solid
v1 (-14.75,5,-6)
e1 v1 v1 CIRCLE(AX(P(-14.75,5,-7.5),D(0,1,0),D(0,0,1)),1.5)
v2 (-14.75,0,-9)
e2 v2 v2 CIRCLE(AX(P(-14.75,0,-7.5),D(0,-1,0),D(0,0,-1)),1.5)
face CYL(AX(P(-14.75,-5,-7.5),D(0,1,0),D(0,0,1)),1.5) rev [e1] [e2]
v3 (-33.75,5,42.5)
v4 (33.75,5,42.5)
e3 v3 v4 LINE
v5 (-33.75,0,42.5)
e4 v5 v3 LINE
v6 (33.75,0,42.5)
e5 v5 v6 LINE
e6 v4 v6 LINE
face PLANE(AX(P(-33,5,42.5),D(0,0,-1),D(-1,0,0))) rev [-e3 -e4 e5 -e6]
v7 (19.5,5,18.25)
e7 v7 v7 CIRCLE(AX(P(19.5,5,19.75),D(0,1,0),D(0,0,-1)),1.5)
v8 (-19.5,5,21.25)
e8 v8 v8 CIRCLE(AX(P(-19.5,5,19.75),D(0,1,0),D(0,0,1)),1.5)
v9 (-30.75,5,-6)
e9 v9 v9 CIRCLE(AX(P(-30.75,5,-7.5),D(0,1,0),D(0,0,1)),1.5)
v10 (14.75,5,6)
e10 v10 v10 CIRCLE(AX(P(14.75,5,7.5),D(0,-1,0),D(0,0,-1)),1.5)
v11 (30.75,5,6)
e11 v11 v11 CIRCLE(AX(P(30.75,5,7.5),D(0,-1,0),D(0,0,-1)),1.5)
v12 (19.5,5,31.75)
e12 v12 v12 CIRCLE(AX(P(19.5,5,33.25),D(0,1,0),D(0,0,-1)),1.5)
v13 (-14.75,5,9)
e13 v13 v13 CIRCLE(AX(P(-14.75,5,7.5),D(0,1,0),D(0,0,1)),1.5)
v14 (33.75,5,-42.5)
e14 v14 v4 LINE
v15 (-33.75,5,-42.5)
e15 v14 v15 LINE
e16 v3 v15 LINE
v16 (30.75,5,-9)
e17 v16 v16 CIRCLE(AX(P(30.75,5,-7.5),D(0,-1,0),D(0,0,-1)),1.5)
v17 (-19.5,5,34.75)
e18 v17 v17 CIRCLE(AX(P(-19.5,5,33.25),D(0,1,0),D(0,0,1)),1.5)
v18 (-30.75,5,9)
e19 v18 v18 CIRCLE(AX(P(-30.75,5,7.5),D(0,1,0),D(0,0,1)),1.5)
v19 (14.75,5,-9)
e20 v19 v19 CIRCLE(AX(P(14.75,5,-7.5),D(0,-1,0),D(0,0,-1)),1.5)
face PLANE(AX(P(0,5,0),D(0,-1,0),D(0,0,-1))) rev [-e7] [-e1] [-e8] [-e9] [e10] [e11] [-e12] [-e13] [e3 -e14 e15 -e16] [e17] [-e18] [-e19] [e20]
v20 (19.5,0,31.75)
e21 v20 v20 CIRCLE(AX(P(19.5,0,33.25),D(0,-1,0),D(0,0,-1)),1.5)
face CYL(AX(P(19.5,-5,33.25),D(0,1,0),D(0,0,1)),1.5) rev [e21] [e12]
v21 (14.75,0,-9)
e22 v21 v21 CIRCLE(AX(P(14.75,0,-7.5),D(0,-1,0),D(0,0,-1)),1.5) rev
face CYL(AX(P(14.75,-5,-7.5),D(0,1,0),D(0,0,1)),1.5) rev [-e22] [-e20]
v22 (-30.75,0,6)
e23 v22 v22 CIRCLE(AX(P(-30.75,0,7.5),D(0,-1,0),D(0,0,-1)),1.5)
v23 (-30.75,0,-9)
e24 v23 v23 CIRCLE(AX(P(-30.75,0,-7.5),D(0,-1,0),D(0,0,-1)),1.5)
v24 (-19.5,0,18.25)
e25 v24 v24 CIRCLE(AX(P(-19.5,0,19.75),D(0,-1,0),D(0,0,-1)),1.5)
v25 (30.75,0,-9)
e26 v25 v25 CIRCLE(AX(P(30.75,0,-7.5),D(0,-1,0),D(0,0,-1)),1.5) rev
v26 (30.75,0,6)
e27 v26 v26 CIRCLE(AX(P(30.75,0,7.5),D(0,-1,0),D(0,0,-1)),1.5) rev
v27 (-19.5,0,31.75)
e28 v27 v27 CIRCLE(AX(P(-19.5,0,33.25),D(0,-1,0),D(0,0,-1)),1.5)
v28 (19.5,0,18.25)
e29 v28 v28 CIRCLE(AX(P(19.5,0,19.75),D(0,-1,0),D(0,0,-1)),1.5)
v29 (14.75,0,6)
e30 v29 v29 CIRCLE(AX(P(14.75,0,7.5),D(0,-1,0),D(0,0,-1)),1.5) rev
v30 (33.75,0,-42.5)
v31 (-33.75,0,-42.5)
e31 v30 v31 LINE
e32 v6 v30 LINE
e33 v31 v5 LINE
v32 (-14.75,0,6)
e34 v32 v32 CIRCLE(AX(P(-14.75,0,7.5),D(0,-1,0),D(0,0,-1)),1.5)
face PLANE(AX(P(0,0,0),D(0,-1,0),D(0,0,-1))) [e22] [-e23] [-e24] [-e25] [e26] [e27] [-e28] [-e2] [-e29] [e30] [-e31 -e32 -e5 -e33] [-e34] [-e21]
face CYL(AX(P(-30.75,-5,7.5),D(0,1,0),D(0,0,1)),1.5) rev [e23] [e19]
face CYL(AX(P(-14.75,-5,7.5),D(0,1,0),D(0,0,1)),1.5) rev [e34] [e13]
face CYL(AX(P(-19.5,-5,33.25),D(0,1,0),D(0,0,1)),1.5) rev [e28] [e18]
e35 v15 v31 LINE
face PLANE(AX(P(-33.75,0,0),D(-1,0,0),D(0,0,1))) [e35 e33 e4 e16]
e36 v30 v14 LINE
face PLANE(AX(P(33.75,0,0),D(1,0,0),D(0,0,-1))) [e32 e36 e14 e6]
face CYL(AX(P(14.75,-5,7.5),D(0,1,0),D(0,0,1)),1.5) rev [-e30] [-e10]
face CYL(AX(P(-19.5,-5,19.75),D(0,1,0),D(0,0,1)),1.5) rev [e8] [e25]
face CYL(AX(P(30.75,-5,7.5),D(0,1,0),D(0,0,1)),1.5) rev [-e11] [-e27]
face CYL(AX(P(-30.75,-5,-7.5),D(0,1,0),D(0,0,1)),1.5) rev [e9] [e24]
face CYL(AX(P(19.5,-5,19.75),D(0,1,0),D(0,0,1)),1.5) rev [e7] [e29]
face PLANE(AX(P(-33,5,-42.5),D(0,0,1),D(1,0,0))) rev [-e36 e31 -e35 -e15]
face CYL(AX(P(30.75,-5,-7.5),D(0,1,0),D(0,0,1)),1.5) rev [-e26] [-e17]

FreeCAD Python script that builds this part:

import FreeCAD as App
import Part
import Sketcher

V = App.Vector

doc = App.newDocument("Part")
body = doc.addObject("PartDesign::Body", "Body")

# Sketch on XZ plane
sketch1 = doc.addObject("Sketcher::SketchObject", "Sketch")
body.addObject(sketch1)
sketch1.AttachmentSupport = (doc.XZ_Plane, [""])
sketch1.MapMode = "FlatFace"
sketch1.addGeometry([
    Part.LineSegment(V(-33, -42, 0), V(-33, 42, 0)),
    Part.LineSegment(V(-33, 42, 0), V(33, 42, 0)),
    Part.LineSegment(V(33, 42, 0), V(33, -42, 0)),
    Part.LineSegment(V(33, -42, 0), V(-33, -42, 0)),
], False)
sketch1.addConstraint([
    Sketcher.Constraint("Coincident", 0, 2, 1, 1),
    Sketcher.Constraint("Coincident", 1, 2, 2, 1),
    Sketcher.Constraint("Coincident", 2, 2, 3, 1),
    Sketcher.Constraint("Coincident", 3, 2, 0, 1),
    Sketcher.Constraint("Vertical", 0),
    Sketcher.Constraint("Horizontal", 1),
    Sketcher.Constraint("Vertical", 2),
    Sketcher.Constraint("Horizontal", 3),
    Sketcher.Constraint("Symmetric", 0, 2, 2, 2, -1, 1),
    Sketcher.Constraint("DistanceX", 1, 1, 1, 2, 66.0),
    Sketcher.Constraint("DistanceY", 0, 1, 0, 2, 85.0),
])
pad1 = doc.addObject("PartDesign::Pad", "Pad")
body.addObject(pad1)
pad1.Profile = sketch1
pad1.Length = 5
pad1.Reversed = True

# Sketch on XZ plane
sketch2 = doc.addObject("Sketcher::SketchObject", "Sketch001")
body.addObject(sketch2)
sketch2.AttachmentSupport = (doc.XZ_Plane, [""])
sketch2.MapMode = "FlatFace"
sketch2.AttachmentOffset = App.Placement(V(0, 0, -5), App.Rotation())
sketch2.addGeometry([
    Part.Circle(V(-30.8, -7.5, 0), V(0, 0, 1), 1.5),  # 0
    Part.Circle(V(-14.8, -7.5, 0), V(0, 0, 1), 1.5),  # 1
    Part.Circle(V(-30.8, 7.5, 0), V(0, 0, 1), 1.5),  # 2
    Part.Circle(V(-14.8, 7.5, 0), V(0, 0, 1), 1.5),  # 3
    Part.Circle(V(14.8, 7.5, 0), V(0, 0, 1), 1.5),  # 4
    Part.Circle(V(30.8, 7.5, 0), V(0, 0, 1), 1.5),  # 5
    Part.Circle(V(14.8, -7.5, 0), V(0, 0, 1), 1.5),  # 6
    Part.Circle(V(30.8, -7.5, 0), V(0, 0, 1), 1.5),  # 7
], False)
sketch2.addConstraint([
    Sketcher.Constraint("Equal", 0, 1),
    Sketcher.Constraint("Equal", 1, 2),
    Sketcher.Constraint("Equal", 2, 3),
    Sketcher.Constraint("Equal", 3, 4),
    Sketcher.Constraint("Equal", 4, 5),
    Sketcher.Constraint("Equal", 5, 6),
    Sketcher.Constraint("Equal", 6, 7),
    Sketcher.Constraint("Symmetric", 1, 3, 4, 3, -1, 1),
    Sketcher.Constraint("Symmetric", 0, 3, 5, 3, -1, 1),
    Sketcher.Constraint("Symmetric", 3, 3, 6, 3, -1, 1),
    Sketcher.Constraint("Symmetric", 2, 3, 7, 3, -1, 1),
    Sketcher.Constraint("Symmetric", 3, 3, 4, 3, -2),
    Sketcher.Constraint("Symmetric", 2, 3, 5, 3, -2),
    Sketcher.Constraint("Horizontal", 0, 3, 1, 3),
    Sketcher.Constraint("Diameter", 0, 3.0),
    Sketcher.Constraint("DistanceX", 0, 3, 1, 3, 16.0),
    Sketcher.Constraint("DistanceY", 0, 3, 2, 3, 15.0),
    Sketcher.Constraint("DistanceX", 3, 3, 4, 3, 29.5),
])
pocket1 = doc.addObject("PartDesign::Pocket", "Pocket")
body.addObject(pocket1)
pocket1.Profile = sketch2
pocket1.Length = 10
pocket1.Reversed = True

# Sketch on YZ plane
sketch3 = doc.addObject("Sketcher::SketchObject", "Sketch002")
body.addObject(sketch3)
sketch3.AttachmentSupport = (doc.YZ_Plane, [""])
sketch3.MapMode = "FlatFace"
sketch3.AttachmentOffset = App.Placement(V(0, 0, -33), App.Rotation())
sketch3.addGeometry([
    Part.LineSegment(V(5, -42, 0), V(0, -42, 0)),
    Part.LineSegment(V(0, -42, 0), V(0, 42, 0)),
    Part.LineSegment(V(0, 42, 0), V(5, 42, 0)),
    Part.LineSegment(V(5, 42, 0), V(5, -42, 0)),
], False)
sketch3.addConstraint([
    Sketcher.Constraint("Coincident", 0, 2, 1, 1),
    Sketcher.Constraint("Coincident", 1, 2, 2, 1),
    Sketcher.Constraint("Coincident", 2, 2, 3, 1),
    Sketcher.Constraint("Coincident", 3, 2, 0, 1),
    Sketcher.Constraint("Horizontal", 0),
    Sketcher.Constraint("Vertical", 1),
    Sketcher.Constraint("Horizontal", 2),
    Sketcher.Constraint("Vertical", 3),
    Sketcher.Constraint("Symmetric", 0, 2, 1, 2, -1, 1),
    Sketcher.Constraint("DistanceX", 0, 2, 0, 1, 5.0),
    Sketcher.Constraint("DistanceY", 1, 1, 1, 2, 85.0),
])
pad2 = doc.addObject("PartDesign::Pad", "Pad001")
body.addObject(pad2)
pad2.Profile = sketch3
pad2.Length = 0.75
pad2.Reversed = True

# Sketch on YZ plane
sketch4 = doc.addObject("Sketcher::SketchObject", "Sketch003")
body.addObject(sketch4)
sketch4.AttachmentSupport = (doc.YZ_Plane, [""])
sketch4.MapMode = "FlatFace"
sketch4.AttachmentOffset = App.Placement(V(0, 0, 33), App.Rotation())
sketch4.addGeometry([
    Part.LineSegment(V(5, 42, 0), V(0, 42, 0)),
    Part.LineSegment(V(0, 42, 0), V(0, -42, 0)),
    Part.LineSegment(V(0, -42, 0), V(5, -42, 0)),
    Part.LineSegment(V(5, -42, 0), V(5, 42, 0)),
], False)
sketch4.addConstraint([
    Sketcher.Constraint("Coincident", 0, 2, 1, 1),
    Sketcher.Constraint("Coincident", 1, 2, 2, 1),
    Sketcher.Constraint("Coincident", 2, 2, 3, 1),
    Sketcher.Constraint("Coincident", 3, 2, 0, 1),
    Sketcher.Constraint("Horizontal", 0),
    Sketcher.Constraint("Vertical", 1),
    Sketcher.Constraint("Horizontal", 2),
    Sketcher.Constraint("Vertical", 3),
    Sketcher.Constraint("Symmetric", 0, 2, 1, 2, -1, 1),
    Sketcher.Constraint("DistanceX", 0, 2, 0, 1, 5.0),
    Sketcher.Constraint("DistanceY", 1, 2, 1, 1, 85.0),
])
pad3 = doc.addObject("PartDesign::Pad", "Pad002")
body.addObject(pad3)
pad3.Profile = sketch4
pad3.Length = 0.75

# Sketch on XZ plane
sketch5 = doc.addObject("Sketcher::SketchObject", "Sketch004")
body.addObject(sketch5)
sketch5.AttachmentSupport = (doc.XZ_Plane, [""])
sketch5.MapMode = "FlatFace"
sketch5.AttachmentOffset = App.Placement(V(0, 0, -5), App.Rotation())
sketch5.addGeometry([
    Part.Circle(V(-19.5, 33.2, 0), V(0, 0, 1), 1.5),
    Part.Circle(V(-19.5, 19.8, 0), V(0, 0, 1), 1.5),
    Part.Circle(V(19.5, 33.2, 0), V(0, 0, 1), 1.5),
    Part.Circle(V(19.5, 19.8, 0), V(0, 0, 1), 1.5),
], False)
sketch5.addConstraint([
    Sketcher.Constraint("Equal", 0, 1),
    Sketcher.Constraint("Equal", 1, 2),
    Sketcher.Constraint("Equal", 2, 3),
    Sketcher.Constraint("Symmetric", 0, 3, 2, 3, -2),
    Sketcher.Constraint("Symmetric", 1, 3, 3, 3, -2),
    Sketcher.Constraint("Vertical", 0, 3, 1, 3),
    Sketcher.Constraint("Diameter", 0, 3.0),
    Sketcher.Constraint("DistanceX", 0, 3, 2, 3, 39.0),
    Sketcher.Constraint("DistanceY", 1, 3, 0, 3, 13.5),
    Sketcher.Constraint("DistanceY", -1, 1, 0, 3, 33.25),
])
pocket2 = doc.addObject("PartDesign::Pocket", "Pocket001")
body.addObject(pocket2)
pocket2.Profile = sketch5
pocket2.Length = 10
pocket2.Reversed = True

doc.recompute()
